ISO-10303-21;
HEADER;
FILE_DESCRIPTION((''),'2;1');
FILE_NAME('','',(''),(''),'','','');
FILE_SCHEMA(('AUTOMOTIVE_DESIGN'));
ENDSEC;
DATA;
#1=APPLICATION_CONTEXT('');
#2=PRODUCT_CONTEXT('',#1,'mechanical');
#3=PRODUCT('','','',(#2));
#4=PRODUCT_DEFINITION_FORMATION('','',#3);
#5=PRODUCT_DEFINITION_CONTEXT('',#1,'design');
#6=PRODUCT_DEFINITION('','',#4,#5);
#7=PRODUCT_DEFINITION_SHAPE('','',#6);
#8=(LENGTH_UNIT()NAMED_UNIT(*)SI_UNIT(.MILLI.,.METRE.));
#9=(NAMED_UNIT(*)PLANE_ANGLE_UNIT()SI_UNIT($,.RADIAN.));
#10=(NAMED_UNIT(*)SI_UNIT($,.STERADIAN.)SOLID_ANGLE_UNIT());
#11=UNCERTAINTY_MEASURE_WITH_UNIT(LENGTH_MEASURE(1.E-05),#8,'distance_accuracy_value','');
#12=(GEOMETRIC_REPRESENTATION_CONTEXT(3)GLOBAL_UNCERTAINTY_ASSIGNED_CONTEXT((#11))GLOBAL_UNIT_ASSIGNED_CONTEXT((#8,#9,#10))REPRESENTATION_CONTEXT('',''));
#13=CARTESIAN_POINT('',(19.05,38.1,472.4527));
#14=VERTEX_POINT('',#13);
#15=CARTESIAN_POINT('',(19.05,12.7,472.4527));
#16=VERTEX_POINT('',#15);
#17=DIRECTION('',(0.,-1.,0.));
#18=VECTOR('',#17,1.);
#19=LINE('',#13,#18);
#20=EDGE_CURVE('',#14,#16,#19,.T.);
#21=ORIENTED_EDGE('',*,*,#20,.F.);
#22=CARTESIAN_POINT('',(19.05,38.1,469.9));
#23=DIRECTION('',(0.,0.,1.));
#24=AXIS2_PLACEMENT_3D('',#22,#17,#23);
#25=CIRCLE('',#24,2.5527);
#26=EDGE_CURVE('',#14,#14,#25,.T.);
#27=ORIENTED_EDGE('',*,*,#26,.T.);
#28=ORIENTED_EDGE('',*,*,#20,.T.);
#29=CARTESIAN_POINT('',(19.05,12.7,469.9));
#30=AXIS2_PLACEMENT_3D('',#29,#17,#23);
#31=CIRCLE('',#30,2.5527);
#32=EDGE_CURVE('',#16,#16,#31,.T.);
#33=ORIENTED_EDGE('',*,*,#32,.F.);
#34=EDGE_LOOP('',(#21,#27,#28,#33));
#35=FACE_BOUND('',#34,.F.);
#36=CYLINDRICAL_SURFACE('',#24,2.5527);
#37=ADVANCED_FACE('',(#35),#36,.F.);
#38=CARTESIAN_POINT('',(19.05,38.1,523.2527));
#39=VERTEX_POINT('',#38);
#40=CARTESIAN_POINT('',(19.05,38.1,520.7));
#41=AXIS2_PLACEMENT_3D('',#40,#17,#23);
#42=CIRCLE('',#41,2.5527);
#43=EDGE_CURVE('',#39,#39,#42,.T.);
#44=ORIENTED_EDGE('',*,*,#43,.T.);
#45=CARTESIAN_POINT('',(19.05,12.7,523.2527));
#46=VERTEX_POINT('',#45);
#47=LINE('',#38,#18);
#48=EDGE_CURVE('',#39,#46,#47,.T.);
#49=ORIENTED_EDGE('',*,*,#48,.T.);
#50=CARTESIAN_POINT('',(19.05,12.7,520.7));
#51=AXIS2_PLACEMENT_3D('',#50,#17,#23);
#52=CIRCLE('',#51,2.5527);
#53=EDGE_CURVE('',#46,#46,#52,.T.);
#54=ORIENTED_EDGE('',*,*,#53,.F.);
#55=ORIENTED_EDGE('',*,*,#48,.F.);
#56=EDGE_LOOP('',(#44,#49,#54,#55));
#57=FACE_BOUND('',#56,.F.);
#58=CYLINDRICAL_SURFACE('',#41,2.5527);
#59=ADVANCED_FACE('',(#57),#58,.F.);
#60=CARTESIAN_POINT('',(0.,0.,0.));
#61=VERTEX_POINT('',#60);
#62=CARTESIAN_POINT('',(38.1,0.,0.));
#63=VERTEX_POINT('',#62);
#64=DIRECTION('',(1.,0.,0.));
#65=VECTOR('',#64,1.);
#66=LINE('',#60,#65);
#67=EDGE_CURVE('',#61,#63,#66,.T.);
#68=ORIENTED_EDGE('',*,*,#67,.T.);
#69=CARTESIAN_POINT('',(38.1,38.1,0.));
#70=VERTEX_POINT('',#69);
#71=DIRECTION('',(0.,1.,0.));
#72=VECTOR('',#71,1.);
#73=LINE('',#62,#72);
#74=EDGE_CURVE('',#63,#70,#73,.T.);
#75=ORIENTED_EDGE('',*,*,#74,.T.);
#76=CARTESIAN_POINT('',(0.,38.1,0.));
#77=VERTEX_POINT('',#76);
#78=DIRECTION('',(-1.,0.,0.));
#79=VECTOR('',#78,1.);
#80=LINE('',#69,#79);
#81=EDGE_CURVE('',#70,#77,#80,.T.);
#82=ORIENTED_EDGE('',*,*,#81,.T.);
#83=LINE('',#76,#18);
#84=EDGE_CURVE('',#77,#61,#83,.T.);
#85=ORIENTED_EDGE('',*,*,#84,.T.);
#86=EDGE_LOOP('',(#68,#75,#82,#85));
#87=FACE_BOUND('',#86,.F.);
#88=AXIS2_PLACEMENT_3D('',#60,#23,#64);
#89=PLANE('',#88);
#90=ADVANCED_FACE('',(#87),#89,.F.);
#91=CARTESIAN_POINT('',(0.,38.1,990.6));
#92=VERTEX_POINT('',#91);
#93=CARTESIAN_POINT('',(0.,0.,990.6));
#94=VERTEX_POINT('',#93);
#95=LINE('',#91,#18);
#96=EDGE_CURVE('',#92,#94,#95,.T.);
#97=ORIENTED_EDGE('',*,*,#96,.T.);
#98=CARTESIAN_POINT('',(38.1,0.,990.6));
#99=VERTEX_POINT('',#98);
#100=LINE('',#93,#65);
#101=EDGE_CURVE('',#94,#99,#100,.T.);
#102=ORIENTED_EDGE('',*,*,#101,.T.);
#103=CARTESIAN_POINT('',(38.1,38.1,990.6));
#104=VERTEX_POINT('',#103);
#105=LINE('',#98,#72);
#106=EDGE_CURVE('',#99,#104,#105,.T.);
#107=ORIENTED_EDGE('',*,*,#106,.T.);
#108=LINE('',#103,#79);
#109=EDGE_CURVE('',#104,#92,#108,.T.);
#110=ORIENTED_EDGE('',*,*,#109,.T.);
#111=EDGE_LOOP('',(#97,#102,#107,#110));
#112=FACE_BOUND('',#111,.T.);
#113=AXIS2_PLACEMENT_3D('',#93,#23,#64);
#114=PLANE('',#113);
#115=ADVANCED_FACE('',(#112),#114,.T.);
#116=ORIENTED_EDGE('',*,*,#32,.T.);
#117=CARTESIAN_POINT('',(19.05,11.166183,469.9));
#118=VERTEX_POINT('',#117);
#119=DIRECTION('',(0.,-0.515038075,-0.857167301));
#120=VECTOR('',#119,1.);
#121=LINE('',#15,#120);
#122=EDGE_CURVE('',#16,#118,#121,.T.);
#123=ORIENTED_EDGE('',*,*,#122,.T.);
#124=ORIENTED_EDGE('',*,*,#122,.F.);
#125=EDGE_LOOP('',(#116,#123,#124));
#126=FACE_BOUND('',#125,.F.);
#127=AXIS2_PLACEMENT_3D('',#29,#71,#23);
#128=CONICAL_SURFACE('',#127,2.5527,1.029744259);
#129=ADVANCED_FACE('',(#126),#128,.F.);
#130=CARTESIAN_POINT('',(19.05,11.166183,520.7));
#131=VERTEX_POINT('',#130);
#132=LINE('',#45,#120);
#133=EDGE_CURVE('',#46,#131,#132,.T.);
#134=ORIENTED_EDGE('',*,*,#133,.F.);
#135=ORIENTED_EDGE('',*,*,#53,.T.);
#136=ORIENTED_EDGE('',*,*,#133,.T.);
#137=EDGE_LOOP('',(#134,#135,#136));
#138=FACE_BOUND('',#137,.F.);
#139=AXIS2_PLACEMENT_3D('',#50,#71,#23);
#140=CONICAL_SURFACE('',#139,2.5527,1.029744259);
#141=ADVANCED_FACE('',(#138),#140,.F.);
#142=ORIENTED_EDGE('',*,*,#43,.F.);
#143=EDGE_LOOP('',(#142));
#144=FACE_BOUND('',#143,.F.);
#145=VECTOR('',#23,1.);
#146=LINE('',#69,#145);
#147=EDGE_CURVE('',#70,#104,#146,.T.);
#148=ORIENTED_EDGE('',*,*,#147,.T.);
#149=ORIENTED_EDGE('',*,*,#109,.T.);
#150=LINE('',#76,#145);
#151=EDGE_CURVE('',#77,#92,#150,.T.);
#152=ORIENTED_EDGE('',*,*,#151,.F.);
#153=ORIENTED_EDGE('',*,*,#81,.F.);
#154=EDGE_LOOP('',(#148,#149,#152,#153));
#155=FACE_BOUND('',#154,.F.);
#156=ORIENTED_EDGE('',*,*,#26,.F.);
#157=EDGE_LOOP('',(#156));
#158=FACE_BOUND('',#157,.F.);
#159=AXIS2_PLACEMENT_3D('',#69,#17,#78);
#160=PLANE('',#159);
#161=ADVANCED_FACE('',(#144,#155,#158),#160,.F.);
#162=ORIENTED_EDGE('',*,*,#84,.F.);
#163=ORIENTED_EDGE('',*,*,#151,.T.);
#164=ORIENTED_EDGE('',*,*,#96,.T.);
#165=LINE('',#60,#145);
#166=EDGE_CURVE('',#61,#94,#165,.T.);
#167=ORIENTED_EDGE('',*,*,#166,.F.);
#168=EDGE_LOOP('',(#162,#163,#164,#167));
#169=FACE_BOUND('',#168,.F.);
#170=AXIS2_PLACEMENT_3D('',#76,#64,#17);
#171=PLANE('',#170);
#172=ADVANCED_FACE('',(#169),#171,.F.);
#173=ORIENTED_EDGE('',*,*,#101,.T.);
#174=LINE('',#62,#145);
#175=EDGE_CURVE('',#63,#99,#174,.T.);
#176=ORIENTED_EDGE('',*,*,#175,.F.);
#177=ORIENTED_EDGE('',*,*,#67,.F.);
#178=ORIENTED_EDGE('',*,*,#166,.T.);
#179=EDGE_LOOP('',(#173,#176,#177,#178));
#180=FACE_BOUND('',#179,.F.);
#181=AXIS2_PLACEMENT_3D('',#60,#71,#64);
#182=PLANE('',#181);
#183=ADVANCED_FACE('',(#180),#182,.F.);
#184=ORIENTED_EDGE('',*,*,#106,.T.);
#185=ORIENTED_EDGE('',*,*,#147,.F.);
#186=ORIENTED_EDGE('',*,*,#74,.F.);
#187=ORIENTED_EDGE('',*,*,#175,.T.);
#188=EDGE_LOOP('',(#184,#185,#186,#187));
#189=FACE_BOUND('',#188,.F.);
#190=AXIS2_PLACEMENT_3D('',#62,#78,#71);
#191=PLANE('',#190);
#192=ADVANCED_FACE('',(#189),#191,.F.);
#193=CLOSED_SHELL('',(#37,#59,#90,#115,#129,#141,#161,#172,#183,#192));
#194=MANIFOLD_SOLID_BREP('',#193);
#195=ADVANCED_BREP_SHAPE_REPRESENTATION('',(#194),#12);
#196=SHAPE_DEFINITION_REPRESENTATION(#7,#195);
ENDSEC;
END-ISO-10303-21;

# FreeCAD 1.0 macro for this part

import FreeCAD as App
import Part
import Sketcher
Q = App.Units.Quantity


def add_polygon(sketch, points):
    """Adds a closed chain of lines whose ends are joined by coincident constraints."""
    first, n = sketch.GeometryCount, len(points)
    for a, b in zip(points, points[1:] + points[:1]):
        sketch.addGeometry(Part.LineSegment(App.Vector(*a, 0), App.Vector(*b, 0)), False)
    for i in range(n):
        sketch.addConstraint(Sketcher.Constraint("Coincident", first + i, 2, first + (i + 1) % n, 1))

doc = App.newDocument("Part")
params = doc.addObject("Spreadsheet::Sheet", "Params")
for row, (alias, value) in enumerate([
    ("sketch1_width", "1.5 in"),
    ("pad1_length", "39 in"),
    ("sketch2_diameter", "0.201 in"),
    ("hole_diameter", "0.201 in"),
    ("hole_depth", "1 in"),
], start=1):
    params.set(f"A{row}", alias)
    params.set(f"B{row}", "=" + value)
    params.setAlias(f"B{row}", alias)

body = doc.addObject("PartDesign::Body", "Body")

# Sketch on XY plane
sketch1 = body.newObject("Sketcher::SketchObject", "Sketch")
sketch1.AttachmentSupport = (doc.getObject("XY_Plane"), [""])
sketch1.MapMode = "FlatFace"
add_polygon(sketch1, [(0, 38), (0, 0), (38, 0), (38, 38)])  # lines 0-3
sketch1.addConstraint([
    Sketcher.Constraint("Vertical", 0),
    Sketcher.Constraint("Horizontal", 1),
    Sketcher.Constraint("Vertical", 2),
    Sketcher.Constraint("Horizontal", 3),
    Sketcher.Constraint("Coincident", 0, 2, -1, 1),
    Sketcher.Constraint("Equal", 3, 0),
    Sketcher.Constraint("DistanceX", 1, 1, 1, 2, Q("1.5 in")),
])
sketch1.setExpression("Constraints[10]", "Params.sketch1_width")
pad1 = body.newObject("PartDesign::Pad", "Pad")
pad1.Profile = sketch1
pad1.setExpression("Length", "Params.pad1_length")

# Sketch on XZ plane
sketch2 = body.newObject("Sketcher::SketchObject", "Sketch001")
sketch2.AttachmentSupport = (doc.getObject("XZ_Plane"), [""])
sketch2.MapMode = "FlatFace"
sketch2.AttachmentOffset = App.Placement(App.Vector(0, 0, -1.5 * 25.4), App.Rotation())
sketch2.addGeometry([
    Part.Circle(App.Vector(19.1, 469.9, 0), App.Vector(0, 0, 1), 2.6),
    Part.Circle(App.Vector(19.1, 520.7, 0), App.Vector(0, 0, 1), 2.6),
], False)
sketch2.addConstraint([
    Sketcher.Constraint("Equal", 0, 1),
    Sketcher.Constraint("Vertical", 0, 3, 1, 3),
    Sketcher.Constraint("Diameter", 0, Q("0.201 in")),
    Sketcher.Constraint("DistanceY", 0, 3, 1, 3, Q("2 in")),
    Sketcher.Constraint("DistanceY", -1, 1, 0, 3, Q("18.5 in")),
    Sketcher.Constraint("DistanceX", -1, 1, 0, 3, Q("0.75 in")),
])
sketch2.setExpression("Constraints[2]", "Params.sketch2_diameter")
doc.recompute()
hole = body.newObject("PartDesign::Hole", "Hole")
hole.Profile = sketch2
hole.ThreadType = "None"
hole.setExpression("Diameter", "Params.hole_diameter")
hole.DepthType = "Dimension"
hole.setExpression("Depth", "Params.hole_depth")
hole.DrillPoint = "Angled"
hole.DrillPointAngle = 118
hole.Reversed = True

doc.recompute()
